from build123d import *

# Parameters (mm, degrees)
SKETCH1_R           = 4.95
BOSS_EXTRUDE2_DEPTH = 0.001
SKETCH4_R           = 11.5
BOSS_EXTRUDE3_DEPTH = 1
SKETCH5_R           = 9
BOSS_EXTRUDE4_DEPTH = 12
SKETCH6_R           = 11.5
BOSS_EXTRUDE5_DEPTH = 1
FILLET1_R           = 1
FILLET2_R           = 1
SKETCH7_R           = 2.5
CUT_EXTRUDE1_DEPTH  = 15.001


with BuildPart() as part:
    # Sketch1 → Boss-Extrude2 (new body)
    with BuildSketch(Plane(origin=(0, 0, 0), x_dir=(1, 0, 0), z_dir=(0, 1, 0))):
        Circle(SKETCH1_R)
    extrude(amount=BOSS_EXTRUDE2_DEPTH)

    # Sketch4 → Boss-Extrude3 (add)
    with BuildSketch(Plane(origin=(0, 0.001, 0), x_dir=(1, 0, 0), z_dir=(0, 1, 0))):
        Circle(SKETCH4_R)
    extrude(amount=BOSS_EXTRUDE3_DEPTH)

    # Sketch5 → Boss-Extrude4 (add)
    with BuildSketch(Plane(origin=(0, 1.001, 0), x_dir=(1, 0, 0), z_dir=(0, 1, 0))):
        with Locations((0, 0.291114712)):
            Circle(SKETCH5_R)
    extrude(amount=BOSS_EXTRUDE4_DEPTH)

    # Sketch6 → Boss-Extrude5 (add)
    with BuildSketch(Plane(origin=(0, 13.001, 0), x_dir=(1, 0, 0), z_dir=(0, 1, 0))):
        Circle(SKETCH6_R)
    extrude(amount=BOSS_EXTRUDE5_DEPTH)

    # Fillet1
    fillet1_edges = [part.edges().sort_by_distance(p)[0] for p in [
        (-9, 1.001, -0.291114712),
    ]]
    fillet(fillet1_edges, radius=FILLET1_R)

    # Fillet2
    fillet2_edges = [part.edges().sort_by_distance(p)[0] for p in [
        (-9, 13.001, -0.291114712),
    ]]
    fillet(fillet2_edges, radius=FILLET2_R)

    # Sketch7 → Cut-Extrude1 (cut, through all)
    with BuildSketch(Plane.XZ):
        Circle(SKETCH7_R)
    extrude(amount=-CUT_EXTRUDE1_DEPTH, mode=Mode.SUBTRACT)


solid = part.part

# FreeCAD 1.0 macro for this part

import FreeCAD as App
import Part
import Sketcher
Q = App.Units.Quantity


def edges_at(feature, points):
    """Names of the edges that pass closest to the given points."""
    edges = feature.Shape.Edges
    near = lambda p: min(range(len(edges)), key=lambda i: edges[i].distToShape(Part.Vertex(*p))[0])
    return sorted({f"Edge{near(p) + 1}" for p in points})

doc = App.newDocument("Part")
params = doc.addObject("Spreadsheet::Sheet", "Params")
for row, (alias, value) in enumerate([
    ("sketch1_diameter", "9.9 mm"),
    ("pad1_length", "0.001 mm"),
    ("sketch2_diameter", "23 mm"),
    ("pad2_length", "1 mm"),
    ("sketch3_diameter", "18 mm"),
    ("pad3_length", "12 mm"),
    ("sketch4_diameter", "23 mm"),
    ("pad4_length", "1 mm"),
    ("fillet_radius", "1 mm"),
    ("fillet2_radius", "1 mm"),
    ("sketch5_diameter", "5 mm"),
], start=1):
    params.set(f"A{row}", alias)
    params.set(f"B{row}", "=" + value)
    params.setAlias(f"B{row}", alias)

body = doc.addObject("PartDesign::Body", "Body")

# Sketch on XZ plane
sketch1 = body.newObject("Sketcher::SketchObject", "Sketch")
sketch1.AttachmentSupport = (doc.getObject("XZ_Plane"), [""])
sketch1.MapMode = "FlatFace"
sketch1.addGeometry(Part.Circle(App.Vector(0, 0, 0), App.Vector(0, 0, 1), 5), False)
sketch1.addConstraint([
    Sketcher.Constraint("Coincident", 0, 3, -1, 1),
    Sketcher.Constraint("Diameter", 0, Q("9.9 mm")),
])
sketch1.setExpression("Constraints[1]", "Params.sketch1_diameter")
pad1 = body.newObject("PartDesign::Pad", "Pad")
pad1.Profile = sketch1
pad1.setExpression("Length", "Params.pad1_length")
pad1.Reversed = True

# Sketch on XZ plane
sketch2 = body.newObject("Sketcher::SketchObject", "Sketch001")
sketch2.AttachmentSupport = (doc.getObject("XZ_Plane"), [""])
sketch2.MapMode = "FlatFace"
sketch2.AttachmentOffset = App.Placement(App.Vector(0, 0, -0.001), App.Rotation())
sketch2.addGeometry(Part.Circle(App.Vector(0, 0, 0), App.Vector(0, 0, 1), 12), False)
sketch2.addConstraint([
    Sketcher.Constraint("Coincident", 0, 3, -1, 1),
    Sketcher.Constraint("Diameter", 0, Q("23 mm")),
])
sketch2.setExpression("Constraints[1]", "Params.sketch2_diameter")
pad2 = body.newObject("PartDesign::Pad", "Pad001")
pad2.Profile = sketch2
pad2.setExpression("Length", "Params.pad2_length")
pad2.Reversed = True

# Sketch on XZ plane
sketch3 = body.newObject("Sketcher::SketchObject", "Sketch002")
sketch3.AttachmentSupport = (doc.getObject("XZ_Plane"), [""])
sketch3.MapMode = "FlatFace"
sketch3.AttachmentOffset = App.Placement(App.Vector(0, 0, -1.001), App.Rotation())
sketch3.addGeometry(Part.Circle(App.Vector(0, 0, 0), App.Vector(0, 0, 1), 9), False)
sketch3.addConstraint([
    Sketcher.Constraint("PointOnObject", 0, 3, -2),
    Sketcher.Constraint("Diameter", 0, Q("18 mm")),
    Sketcher.Constraint("DistanceY", 0, 3, -1, 1, Q("0.291115 mm")),
])
sketch3.setExpression("Constraints[1]", "Params.sketch3_diameter")
pad3 = body.newObject("PartDesign::Pad", "Pad002")
pad3.Profile = sketch3
pad3.setExpression("Length", "Params.pad3_length")
pad3.Reversed = True

# Sketch on XZ plane
sketch4 = body.newObject("Sketcher::SketchObject", "Sketch003")
sketch4.AttachmentSupport = (doc.getObject("XZ_Plane"), [""])
sketch4.MapMode = "FlatFace"
sketch4.AttachmentOffset = App.Placement(App.Vector(0, 0, -13.001), App.Rotation())
sketch4.addGeometry(Part.Circle(App.Vector(0, 0, 0), App.Vector(0, 0, 1), 12), False)
sketch4.addConstraint([
    Sketcher.Constraint("Coincident", 0, 3, -1, 1),
    Sketcher.Constraint("Diameter", 0, Q("23 mm")),
])
sketch4.setExpression("Constraints[1]", "Params.sketch4_diameter")
pad4 = body.newObject("PartDesign::Pad", "Pad003")
pad4.Profile = sketch4
pad4.setExpression("Length", "Params.pad4_length")
pad4.Reversed = True
doc.recompute()

fillet = body.newObject("PartDesign::Fillet", "Fillet")
fillet.Base = (pad4, edges_at(pad4, [(-9, 1.001, -0.291)]))
fillet.setExpression("Radius", "Params.fillet_radius")
doc.recompute()

fillet2 = body.newObject("PartDesign::Fillet", "Fillet001")
fillet2.Base = (fillet, edges_at(fillet, [(-9, 13.001, -0.291)]))
fillet2.setExpression("Radius", "Params.fillet2_radius")

# Sketch on XZ plane
sketch5 = body.newObject("Sketcher::SketchObject", "Sketch004")
sketch5.AttachmentSupport = (doc.getObject("XZ_Plane"), [""])
sketch5.MapMode = "FlatFace"
sketch5.addGeometry(Part.Circle(App.Vector(0, 0, 0), App.Vector(0, 0, 1), 2.5), False)
sketch5.addConstraint([
    Sketcher.Constraint("Coincident", 0, 3, -1, 1),
    Sketcher.Constraint("Diameter", 0, Q("5 mm")),
])
sketch5.setExpression("Constraints[1]", "Params.sketch5_diameter")
pocket1 = body.newObject("PartDesign::Pocket", "Pocket")
pocket1.Profile = sketch5
pocket1.Type = "ThroughAll"

doc.recompute()
